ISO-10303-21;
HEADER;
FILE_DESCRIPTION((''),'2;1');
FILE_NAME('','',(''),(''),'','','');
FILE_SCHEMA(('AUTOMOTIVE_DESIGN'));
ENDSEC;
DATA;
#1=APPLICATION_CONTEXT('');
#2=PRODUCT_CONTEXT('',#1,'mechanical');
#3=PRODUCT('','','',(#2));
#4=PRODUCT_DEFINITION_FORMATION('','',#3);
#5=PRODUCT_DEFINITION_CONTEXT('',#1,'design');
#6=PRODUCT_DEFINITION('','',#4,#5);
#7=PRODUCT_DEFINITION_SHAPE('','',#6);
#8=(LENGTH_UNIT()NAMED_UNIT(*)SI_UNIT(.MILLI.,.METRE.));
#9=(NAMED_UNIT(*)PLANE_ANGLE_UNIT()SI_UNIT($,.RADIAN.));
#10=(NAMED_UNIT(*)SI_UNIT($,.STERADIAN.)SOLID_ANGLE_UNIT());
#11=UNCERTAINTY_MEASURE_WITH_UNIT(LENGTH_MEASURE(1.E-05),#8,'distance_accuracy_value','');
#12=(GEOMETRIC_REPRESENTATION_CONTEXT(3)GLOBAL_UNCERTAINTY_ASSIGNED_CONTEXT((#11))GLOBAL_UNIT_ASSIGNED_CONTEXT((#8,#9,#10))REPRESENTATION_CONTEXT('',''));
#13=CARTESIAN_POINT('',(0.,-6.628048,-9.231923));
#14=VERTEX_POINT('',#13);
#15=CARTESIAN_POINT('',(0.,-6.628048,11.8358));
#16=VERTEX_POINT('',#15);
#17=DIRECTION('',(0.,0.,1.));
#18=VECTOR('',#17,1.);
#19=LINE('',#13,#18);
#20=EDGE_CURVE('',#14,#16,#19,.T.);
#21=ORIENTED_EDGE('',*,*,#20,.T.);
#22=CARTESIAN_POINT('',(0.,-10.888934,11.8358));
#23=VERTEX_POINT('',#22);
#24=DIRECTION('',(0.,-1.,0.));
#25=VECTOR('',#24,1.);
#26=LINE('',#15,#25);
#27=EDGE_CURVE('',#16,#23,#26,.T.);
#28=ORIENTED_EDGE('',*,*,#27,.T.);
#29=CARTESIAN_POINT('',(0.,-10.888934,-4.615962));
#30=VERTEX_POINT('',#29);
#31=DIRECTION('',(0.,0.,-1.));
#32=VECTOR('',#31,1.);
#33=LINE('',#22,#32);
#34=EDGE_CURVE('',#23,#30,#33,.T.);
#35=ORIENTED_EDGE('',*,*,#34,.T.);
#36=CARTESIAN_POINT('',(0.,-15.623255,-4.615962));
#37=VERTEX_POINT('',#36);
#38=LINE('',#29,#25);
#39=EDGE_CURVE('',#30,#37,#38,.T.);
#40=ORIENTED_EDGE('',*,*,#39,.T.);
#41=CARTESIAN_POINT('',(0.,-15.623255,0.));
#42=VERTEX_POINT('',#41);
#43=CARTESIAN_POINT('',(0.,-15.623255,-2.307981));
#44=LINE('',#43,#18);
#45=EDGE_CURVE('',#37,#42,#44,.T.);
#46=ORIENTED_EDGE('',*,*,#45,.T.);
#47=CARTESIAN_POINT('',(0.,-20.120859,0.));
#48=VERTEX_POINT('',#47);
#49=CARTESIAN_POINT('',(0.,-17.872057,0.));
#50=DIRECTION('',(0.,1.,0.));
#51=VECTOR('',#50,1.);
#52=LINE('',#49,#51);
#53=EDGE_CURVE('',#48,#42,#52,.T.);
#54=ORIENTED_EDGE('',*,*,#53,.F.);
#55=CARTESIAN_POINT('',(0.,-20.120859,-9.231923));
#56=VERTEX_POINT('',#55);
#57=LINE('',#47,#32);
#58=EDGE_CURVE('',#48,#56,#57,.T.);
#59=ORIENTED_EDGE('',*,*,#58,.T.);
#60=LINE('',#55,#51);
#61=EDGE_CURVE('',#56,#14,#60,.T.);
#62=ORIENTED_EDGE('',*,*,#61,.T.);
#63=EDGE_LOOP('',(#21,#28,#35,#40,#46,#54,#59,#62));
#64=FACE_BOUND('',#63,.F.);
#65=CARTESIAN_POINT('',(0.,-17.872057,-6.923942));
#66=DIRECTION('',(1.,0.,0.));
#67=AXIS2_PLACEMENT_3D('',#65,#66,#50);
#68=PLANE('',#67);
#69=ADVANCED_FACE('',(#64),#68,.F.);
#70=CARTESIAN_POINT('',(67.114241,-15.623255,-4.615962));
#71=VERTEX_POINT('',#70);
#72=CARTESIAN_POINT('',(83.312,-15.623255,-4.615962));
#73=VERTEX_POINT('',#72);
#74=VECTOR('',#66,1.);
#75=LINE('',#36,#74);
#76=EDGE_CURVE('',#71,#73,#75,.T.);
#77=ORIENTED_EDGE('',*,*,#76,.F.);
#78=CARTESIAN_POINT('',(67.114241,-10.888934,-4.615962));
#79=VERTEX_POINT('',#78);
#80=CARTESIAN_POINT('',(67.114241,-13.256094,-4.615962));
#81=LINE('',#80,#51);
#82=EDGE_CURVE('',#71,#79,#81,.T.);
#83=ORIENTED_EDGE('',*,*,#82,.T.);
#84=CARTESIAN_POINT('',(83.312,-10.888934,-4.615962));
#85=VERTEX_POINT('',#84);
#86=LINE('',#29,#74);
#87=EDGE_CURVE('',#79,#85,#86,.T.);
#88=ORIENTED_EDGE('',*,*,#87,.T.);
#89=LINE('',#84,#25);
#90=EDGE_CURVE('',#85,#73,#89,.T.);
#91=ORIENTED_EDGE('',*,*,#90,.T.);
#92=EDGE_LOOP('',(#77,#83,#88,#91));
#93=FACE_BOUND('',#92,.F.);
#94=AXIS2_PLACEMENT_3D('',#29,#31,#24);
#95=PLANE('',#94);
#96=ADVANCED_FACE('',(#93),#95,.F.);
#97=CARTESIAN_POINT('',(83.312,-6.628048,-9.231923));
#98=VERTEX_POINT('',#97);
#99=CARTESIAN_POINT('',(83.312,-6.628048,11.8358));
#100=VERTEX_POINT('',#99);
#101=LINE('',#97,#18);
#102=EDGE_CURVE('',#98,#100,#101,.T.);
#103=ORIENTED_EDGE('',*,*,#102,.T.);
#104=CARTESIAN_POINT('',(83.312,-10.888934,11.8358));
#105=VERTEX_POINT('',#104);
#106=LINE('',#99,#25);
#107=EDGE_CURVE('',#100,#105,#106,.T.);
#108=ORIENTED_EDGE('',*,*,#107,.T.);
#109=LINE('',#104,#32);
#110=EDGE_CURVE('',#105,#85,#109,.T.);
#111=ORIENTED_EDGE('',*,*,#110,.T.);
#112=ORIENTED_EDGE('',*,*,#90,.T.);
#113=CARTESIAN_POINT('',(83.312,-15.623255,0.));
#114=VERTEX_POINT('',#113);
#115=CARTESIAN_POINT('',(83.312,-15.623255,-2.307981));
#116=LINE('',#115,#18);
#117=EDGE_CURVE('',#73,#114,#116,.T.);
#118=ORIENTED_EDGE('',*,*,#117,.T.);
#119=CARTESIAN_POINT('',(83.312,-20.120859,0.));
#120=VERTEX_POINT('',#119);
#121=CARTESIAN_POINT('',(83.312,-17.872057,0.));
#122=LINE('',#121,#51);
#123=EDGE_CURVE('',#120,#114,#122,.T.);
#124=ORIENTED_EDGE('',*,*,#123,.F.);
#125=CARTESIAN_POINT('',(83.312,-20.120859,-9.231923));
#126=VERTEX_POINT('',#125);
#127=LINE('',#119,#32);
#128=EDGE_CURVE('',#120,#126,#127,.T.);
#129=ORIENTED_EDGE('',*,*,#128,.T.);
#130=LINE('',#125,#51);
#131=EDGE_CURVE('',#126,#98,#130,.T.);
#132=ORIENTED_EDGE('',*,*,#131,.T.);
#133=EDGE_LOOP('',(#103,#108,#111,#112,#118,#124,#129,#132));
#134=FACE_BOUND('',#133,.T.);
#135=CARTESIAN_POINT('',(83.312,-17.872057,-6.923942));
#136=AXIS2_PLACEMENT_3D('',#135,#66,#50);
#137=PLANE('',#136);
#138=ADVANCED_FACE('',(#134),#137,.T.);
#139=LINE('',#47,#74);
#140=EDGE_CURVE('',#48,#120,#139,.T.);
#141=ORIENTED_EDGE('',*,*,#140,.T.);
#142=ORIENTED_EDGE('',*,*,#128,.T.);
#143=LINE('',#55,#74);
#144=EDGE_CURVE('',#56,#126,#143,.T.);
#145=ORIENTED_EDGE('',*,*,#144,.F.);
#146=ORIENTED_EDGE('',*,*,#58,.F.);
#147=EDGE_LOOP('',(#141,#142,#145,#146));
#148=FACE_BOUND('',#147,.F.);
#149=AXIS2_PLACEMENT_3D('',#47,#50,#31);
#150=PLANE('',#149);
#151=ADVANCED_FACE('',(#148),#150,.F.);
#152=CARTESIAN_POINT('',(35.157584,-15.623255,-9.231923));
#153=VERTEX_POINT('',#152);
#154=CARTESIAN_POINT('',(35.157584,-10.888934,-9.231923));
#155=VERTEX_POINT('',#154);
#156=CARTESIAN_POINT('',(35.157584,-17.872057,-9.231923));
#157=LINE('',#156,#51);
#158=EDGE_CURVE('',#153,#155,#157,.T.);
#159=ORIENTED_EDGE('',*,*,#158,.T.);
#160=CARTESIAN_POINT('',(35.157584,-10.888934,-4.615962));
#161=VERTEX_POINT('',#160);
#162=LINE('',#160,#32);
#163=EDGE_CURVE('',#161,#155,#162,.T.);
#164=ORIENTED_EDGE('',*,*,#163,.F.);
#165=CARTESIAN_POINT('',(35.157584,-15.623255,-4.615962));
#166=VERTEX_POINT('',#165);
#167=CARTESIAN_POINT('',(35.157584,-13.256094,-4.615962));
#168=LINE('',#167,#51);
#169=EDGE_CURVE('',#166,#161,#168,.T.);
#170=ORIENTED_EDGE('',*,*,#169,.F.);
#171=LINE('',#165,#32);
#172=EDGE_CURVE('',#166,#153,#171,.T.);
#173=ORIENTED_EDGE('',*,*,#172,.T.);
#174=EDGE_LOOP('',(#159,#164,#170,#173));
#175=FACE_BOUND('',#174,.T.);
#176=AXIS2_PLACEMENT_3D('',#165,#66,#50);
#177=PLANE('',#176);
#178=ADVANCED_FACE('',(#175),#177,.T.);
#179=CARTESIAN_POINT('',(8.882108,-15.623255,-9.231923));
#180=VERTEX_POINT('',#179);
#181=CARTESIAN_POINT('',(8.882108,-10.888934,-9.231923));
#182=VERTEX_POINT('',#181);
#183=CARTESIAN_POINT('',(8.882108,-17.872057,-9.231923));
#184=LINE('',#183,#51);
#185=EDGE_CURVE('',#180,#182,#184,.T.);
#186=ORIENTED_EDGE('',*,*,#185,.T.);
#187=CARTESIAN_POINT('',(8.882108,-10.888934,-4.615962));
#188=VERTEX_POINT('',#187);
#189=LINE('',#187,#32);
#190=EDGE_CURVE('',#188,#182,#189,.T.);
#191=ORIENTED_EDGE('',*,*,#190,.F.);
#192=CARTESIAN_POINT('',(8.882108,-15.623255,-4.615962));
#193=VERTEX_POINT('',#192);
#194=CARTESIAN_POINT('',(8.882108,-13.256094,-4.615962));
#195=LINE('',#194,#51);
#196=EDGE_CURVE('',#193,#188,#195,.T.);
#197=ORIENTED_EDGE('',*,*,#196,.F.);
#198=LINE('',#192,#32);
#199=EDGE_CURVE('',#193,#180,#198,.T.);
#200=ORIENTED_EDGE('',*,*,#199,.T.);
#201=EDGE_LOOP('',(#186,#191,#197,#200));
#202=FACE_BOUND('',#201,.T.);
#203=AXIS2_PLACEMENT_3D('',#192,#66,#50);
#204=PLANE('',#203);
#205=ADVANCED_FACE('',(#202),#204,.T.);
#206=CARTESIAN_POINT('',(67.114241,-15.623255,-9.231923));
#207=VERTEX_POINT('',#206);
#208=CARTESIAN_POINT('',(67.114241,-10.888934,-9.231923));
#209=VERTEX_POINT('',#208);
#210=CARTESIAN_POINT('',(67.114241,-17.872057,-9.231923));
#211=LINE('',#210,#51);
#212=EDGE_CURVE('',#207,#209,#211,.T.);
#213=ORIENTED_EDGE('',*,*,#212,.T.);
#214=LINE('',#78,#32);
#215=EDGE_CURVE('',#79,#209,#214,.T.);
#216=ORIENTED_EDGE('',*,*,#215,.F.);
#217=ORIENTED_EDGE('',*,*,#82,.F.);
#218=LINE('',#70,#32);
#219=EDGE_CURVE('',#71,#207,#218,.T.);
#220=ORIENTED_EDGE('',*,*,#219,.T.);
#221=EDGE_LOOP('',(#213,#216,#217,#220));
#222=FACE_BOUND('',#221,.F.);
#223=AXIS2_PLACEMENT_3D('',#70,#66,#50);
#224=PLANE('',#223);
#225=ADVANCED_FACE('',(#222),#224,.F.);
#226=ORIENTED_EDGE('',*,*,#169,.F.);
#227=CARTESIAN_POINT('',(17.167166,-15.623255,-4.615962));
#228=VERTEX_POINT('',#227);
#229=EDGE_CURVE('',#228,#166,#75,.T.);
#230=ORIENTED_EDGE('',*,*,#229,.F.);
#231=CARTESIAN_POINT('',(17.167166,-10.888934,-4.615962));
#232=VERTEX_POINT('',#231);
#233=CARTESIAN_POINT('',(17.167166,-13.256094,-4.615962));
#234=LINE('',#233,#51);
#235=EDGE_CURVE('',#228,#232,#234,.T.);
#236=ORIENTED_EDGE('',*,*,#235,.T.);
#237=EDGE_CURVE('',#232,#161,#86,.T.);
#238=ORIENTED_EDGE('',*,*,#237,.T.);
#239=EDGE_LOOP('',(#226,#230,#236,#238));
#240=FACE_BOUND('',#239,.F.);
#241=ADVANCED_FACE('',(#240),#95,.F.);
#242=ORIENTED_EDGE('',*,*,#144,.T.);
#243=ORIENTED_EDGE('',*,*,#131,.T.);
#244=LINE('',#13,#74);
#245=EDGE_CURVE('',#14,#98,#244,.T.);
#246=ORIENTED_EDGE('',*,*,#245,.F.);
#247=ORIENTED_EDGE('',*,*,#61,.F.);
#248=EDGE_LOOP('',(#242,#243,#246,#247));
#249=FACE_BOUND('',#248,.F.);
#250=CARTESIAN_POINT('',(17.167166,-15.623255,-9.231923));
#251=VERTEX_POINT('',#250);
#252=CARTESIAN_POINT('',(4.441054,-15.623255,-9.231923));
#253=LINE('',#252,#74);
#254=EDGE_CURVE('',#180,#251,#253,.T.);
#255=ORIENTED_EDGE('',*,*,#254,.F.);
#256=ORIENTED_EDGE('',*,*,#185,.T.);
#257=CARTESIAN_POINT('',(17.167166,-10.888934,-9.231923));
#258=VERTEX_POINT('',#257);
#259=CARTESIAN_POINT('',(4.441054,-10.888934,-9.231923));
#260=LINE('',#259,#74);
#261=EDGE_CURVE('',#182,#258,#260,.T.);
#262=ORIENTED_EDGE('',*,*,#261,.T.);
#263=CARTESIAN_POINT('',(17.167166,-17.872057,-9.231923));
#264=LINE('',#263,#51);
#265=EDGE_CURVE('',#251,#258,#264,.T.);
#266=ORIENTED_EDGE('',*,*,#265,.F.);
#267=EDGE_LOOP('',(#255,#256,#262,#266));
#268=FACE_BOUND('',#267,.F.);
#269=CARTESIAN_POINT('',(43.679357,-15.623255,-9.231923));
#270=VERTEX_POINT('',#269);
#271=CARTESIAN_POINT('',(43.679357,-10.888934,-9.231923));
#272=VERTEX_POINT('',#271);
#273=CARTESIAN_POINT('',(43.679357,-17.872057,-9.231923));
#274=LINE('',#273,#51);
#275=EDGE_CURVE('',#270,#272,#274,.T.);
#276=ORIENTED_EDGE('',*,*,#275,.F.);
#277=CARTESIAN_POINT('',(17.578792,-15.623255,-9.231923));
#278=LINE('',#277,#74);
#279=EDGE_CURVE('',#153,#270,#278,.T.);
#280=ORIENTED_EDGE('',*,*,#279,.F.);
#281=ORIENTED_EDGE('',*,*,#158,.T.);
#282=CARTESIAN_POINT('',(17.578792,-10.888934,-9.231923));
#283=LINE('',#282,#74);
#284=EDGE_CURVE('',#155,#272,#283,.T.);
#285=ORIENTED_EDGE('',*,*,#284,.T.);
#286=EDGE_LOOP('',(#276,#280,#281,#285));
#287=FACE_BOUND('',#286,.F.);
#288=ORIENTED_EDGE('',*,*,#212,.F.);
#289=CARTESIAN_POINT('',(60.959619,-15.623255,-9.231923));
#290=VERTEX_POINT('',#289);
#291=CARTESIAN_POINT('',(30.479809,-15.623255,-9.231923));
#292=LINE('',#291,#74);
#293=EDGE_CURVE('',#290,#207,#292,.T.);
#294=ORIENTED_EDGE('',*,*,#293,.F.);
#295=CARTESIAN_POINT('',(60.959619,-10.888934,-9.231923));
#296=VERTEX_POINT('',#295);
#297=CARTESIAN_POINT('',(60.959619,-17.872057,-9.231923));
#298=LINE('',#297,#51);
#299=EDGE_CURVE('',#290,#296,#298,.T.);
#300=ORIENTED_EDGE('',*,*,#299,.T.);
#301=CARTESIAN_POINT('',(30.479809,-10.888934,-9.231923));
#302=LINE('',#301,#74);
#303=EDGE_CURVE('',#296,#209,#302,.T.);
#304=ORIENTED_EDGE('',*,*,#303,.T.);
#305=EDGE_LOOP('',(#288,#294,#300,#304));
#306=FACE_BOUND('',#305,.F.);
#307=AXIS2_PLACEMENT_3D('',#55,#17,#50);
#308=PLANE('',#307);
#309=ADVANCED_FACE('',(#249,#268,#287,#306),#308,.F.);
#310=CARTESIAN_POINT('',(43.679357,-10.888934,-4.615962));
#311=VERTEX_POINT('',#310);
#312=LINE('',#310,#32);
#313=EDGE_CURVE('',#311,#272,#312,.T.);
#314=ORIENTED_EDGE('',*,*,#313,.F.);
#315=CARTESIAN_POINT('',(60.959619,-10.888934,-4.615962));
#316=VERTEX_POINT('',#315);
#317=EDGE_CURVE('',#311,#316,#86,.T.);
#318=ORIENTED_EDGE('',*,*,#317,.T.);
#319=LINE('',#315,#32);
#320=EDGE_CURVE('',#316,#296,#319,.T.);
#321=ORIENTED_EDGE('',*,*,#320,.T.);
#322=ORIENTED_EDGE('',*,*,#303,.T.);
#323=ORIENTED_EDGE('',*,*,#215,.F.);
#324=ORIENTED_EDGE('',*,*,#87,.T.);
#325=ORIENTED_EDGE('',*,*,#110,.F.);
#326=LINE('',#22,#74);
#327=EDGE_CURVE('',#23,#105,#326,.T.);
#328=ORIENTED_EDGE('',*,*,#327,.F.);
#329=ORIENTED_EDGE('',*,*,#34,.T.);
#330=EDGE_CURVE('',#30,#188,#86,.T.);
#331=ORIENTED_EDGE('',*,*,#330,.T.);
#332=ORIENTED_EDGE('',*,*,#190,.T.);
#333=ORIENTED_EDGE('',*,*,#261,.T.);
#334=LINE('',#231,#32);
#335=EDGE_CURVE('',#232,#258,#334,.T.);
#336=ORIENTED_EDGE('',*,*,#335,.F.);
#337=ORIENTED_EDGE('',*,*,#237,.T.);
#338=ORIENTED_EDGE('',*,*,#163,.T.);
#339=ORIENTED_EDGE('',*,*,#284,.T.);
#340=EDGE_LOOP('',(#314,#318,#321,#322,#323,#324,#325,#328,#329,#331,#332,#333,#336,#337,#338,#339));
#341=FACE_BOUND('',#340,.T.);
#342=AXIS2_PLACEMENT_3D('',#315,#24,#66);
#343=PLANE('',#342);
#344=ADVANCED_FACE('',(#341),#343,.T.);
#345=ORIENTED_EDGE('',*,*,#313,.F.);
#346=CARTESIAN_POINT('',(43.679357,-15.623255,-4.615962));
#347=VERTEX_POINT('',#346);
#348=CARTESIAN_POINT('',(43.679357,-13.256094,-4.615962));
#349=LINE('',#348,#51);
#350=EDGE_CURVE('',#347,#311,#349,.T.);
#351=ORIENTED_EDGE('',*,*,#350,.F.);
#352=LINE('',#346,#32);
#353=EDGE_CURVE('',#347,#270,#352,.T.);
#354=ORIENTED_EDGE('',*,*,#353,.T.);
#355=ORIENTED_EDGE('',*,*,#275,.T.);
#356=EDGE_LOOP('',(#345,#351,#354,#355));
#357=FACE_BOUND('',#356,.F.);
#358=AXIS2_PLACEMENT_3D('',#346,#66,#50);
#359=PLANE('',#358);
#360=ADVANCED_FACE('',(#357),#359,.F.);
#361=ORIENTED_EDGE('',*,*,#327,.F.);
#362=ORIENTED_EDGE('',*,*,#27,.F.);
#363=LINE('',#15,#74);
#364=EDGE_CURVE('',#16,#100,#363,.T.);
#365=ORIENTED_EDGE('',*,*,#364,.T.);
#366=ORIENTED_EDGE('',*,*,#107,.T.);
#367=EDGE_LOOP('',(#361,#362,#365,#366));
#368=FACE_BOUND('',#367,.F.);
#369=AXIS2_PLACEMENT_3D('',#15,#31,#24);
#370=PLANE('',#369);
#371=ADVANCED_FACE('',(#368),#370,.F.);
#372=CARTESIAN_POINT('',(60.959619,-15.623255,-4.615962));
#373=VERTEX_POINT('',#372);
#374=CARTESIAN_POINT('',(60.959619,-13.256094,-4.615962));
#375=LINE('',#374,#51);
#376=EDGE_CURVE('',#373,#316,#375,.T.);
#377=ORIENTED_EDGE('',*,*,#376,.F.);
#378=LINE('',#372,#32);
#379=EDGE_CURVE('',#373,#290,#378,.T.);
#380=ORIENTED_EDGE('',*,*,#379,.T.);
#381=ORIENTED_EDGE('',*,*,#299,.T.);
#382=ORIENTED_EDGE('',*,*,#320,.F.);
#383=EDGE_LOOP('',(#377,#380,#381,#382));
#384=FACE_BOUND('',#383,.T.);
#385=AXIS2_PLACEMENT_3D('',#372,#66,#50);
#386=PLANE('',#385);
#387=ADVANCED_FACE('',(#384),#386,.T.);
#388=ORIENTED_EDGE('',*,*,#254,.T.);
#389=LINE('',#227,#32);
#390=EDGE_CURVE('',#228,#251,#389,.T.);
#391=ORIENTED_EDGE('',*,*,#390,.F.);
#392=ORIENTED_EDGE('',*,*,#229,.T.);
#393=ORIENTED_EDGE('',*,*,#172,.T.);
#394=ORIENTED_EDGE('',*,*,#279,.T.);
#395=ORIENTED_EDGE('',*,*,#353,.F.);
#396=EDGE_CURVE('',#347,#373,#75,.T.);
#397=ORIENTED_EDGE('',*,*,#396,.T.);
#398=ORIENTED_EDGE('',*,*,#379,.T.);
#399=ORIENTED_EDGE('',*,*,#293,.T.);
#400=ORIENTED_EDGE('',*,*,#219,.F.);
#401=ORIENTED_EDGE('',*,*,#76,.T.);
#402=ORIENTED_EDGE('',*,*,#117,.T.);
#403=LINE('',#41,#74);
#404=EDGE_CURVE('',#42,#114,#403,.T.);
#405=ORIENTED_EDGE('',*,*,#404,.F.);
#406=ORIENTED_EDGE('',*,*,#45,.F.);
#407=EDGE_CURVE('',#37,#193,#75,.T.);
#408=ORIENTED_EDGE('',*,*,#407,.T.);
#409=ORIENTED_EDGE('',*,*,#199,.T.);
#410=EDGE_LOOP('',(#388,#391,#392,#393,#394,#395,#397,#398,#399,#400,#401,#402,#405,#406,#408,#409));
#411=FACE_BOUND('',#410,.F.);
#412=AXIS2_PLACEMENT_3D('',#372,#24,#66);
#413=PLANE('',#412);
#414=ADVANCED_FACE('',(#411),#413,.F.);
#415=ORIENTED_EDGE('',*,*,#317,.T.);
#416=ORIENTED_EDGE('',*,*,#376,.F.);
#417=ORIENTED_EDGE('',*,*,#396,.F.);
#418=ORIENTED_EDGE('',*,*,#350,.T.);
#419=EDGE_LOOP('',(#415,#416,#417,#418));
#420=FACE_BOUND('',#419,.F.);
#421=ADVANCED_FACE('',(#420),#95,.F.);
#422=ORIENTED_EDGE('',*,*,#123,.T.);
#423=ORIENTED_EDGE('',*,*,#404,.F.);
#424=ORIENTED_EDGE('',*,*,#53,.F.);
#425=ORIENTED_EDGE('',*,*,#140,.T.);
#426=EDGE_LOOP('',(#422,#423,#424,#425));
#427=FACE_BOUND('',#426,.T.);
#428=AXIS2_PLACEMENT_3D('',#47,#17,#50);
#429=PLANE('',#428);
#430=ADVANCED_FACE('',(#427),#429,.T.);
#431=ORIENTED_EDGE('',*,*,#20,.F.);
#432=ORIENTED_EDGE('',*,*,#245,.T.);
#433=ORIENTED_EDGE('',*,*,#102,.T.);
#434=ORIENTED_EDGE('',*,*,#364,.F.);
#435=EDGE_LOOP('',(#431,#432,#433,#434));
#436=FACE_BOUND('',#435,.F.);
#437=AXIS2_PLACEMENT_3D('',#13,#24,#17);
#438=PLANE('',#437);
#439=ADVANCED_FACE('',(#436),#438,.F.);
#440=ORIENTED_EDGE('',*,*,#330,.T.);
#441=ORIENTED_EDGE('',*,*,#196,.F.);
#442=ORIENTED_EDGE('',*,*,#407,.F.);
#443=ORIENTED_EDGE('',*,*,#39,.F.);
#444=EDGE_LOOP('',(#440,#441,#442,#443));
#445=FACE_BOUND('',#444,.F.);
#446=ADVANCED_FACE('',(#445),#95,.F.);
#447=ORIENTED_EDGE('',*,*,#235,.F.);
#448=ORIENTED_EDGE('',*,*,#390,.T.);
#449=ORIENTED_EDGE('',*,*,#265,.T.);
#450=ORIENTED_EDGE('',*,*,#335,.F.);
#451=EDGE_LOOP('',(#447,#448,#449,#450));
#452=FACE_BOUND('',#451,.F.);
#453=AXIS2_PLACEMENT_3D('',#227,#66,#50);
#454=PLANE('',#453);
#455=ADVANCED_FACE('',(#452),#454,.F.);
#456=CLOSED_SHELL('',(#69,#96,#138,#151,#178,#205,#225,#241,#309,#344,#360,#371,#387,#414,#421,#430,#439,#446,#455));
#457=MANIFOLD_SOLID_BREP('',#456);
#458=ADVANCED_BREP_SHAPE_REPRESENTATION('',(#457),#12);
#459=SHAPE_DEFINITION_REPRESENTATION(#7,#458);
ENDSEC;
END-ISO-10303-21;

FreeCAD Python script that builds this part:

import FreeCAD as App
import Part
import Sketcher

V = App.Vector
Q = App.Units.Quantity


def add_polygon(sketch, points):
    """Adds a closed chain of lines whose ends are joined by coincident constraints."""
    first, n = sketch.GeometryCount, len(points)
    for a, b in zip(points, points[1:] + points[:1]):
        sketch.addGeometry(Part.LineSegment(App.Vector(*a, 0), App.Vector(*b, 0)), False)
    for i in range(n):
        sketch.addConstraint(Sketcher.Constraint("Coincident", first + i, 2, first + (i + 1) % n, 1))

doc = App.newDocument("Part")
body = doc.addObject("PartDesign::Body", "Body")

# Sketch on YZ plane
sketch1 = doc.addObject("Sketcher::SketchObject", "Sketch")
body.addObject(sketch1)
sketch1.AttachmentSupport = (doc.YZ_Plane, [""])
sketch1.MapMode = "FlatFace"
add_polygon(sketch1, [(-20.1, -9.2), (-6.6, -9.2), (-6.6, 11.8), (-10.9, 11.8), (-10.9, -4.6), (-15.6, -4.6), (-15.6, 0), (-20.1, 0)])  # lines 0-7
sketch1.addConstraint(Sketcher.Constraint("Horizontal", 0))
sketch1.addConstraint(Sketcher.Constraint("Vertical", 1))
sketch1.addConstraint(Sketcher.Constraint("Horizontal", 2))
sketch1.addConstraint(Sketcher.Constraint("Vertical", 3))
sketch1.addConstraint(Sketcher.Constraint("Horizontal", 4))
sketch1.addConstraint(Sketcher.Constraint("Vertical", 5))
sketch1.addConstraint(Sketcher.Constraint("Horizontal", 6))
sketch1.addConstraint(Sketcher.Constraint("Vertical", 7))
sketch1.addConstraint(Sketcher.Constraint("PointOnObject", 5, 2, -1))
sketch1.addConstraint(Sketcher.Constraint("DistanceX", 0, 1, 0, 2, 13.492811))
sketch1.addConstraint(Sketcher.Constraint("DistanceX", 4, 2, 4, 1, 4.734321))
sketch1.addConstraint(Sketcher.Constraint("DistanceY", 3, 2, 3, 1, 16.451761))
sketch1.addConstraint(Sketcher.Constraint("DistanceY", 5, 1, 5, 2, 4.615962))
sketch1.addConstraint(Sketcher.Constraint("DistanceX", 2, 2, 2, 1, 4.260886))
sketch1.addConstraint(Sketcher.Constraint("DistanceY", 1, 1, 1, 2, 21.067723))
sketch1.addConstraint(Sketcher.Constraint("DistanceX", 6, 2, -1, 1, 20.120859))
pad1 = doc.addObject("PartDesign::Pad", "Pad")
body.addObject(pad1)
pad1.Profile = sketch1
pad1.Length = Q("3.28 in")

# Sketch on XY plane
sketch2 = doc.addObject("Sketcher::SketchObject", "Sketch001")
body.addObject(sketch2)
sketch2.AttachmentSupport = (doc.XY_Plane, [""])
sketch2.MapMode = "FlatFace"
sketch2.AttachmentOffset = App.Placement(V(0, 0, -4.615962), App.Rotation())
add_polygon(sketch2, [(8.9, -10.9), (8.9, -15.6), (17.2, -15.6), (17.2, -10.9)])  # lines 0-3
add_polygon(sketch2, [(35.2, -10.9), (35.2, -15.6), (43.7, -15.6), (43.7, -10.9)])  # lines 4-7
add_polygon(sketch2, [(61, -10.9), (61, -15.6), (67.1, -15.6), (67.1, -10.9)])  # lines 8-11
sketch2.addConstraint(Sketcher.Constraint("Vertical", 0))
sketch2.addConstraint(Sketcher.Constraint("Horizontal", 1))
sketch2.addConstraint(Sketcher.Constraint("Vertical", 2))
sketch2.addConstraint(Sketcher.Constraint("Horizontal", 3))
sketch2.addConstraint(Sketcher.Constraint("Vertical", 4))
sketch2.addConstraint(Sketcher.Constraint("Horizontal", 5))
sketch2.addConstraint(Sketcher.Constraint("Vertical", 6))
sketch2.addConstraint(Sketcher.Constraint("Horizontal", 7))
sketch2.addConstraint(Sketcher.Constraint("Vertical", 8))
sketch2.addConstraint(Sketcher.Constraint("Horizontal", 9))
sketch2.addConstraint(Sketcher.Constraint("Vertical", 10))
sketch2.addConstraint(Sketcher.Constraint("Horizontal", 11))
sketch2.addConstraint(Sketcher.Constraint("Horizontal", 1, 2, 4, 2))
sketch2.addConstraint(Sketcher.Constraint("Horizontal", 3, 2, 6, 2))
sketch2.addConstraint(Sketcher.Constraint("Horizontal", 5, 2, 8, 2))
sketch2.addConstraint(Sketcher.Constraint("Horizontal", 7, 2, 10, 2))
sketch2.addConstraint(Sketcher.Constraint("DistanceY", 0, 2, 0, 1, 4.734321))
sketch2.addConstraint(Sketcher.Constraint("DistanceX", 1, 1, 1, 2, 8.285058))
sketch2.addConstraint(Sketcher.Constraint("DistanceX", 5, 1, 5, 2, 8.521773))
sketch2.addConstraint(Sketcher.Constraint("DistanceX", 9, 1, 9, 2, 6.154623))
sketch2.addConstraint(Sketcher.Constraint("DistanceX", -1, 1, 0, 2, 8.882108))
sketch2.addConstraint(Sketcher.Constraint("DistanceX", -1, 1, 8, 2, 60.959619))
sketch2.addConstraint(Sketcher.Constraint("DistanceX", 1, 2, 5, 2, 26.512191))
sketch2.addConstraint(Sketcher.Constraint("DistanceY", 0, 2, -1, 1, 15.623255))
pocket1 = doc.addObject("PartDesign::Pocket", "Pocket")
body.addObject(pocket1)
pocket1.Profile = sketch2
pocket1.Length = Q("1.1 in")

doc.recompute()
